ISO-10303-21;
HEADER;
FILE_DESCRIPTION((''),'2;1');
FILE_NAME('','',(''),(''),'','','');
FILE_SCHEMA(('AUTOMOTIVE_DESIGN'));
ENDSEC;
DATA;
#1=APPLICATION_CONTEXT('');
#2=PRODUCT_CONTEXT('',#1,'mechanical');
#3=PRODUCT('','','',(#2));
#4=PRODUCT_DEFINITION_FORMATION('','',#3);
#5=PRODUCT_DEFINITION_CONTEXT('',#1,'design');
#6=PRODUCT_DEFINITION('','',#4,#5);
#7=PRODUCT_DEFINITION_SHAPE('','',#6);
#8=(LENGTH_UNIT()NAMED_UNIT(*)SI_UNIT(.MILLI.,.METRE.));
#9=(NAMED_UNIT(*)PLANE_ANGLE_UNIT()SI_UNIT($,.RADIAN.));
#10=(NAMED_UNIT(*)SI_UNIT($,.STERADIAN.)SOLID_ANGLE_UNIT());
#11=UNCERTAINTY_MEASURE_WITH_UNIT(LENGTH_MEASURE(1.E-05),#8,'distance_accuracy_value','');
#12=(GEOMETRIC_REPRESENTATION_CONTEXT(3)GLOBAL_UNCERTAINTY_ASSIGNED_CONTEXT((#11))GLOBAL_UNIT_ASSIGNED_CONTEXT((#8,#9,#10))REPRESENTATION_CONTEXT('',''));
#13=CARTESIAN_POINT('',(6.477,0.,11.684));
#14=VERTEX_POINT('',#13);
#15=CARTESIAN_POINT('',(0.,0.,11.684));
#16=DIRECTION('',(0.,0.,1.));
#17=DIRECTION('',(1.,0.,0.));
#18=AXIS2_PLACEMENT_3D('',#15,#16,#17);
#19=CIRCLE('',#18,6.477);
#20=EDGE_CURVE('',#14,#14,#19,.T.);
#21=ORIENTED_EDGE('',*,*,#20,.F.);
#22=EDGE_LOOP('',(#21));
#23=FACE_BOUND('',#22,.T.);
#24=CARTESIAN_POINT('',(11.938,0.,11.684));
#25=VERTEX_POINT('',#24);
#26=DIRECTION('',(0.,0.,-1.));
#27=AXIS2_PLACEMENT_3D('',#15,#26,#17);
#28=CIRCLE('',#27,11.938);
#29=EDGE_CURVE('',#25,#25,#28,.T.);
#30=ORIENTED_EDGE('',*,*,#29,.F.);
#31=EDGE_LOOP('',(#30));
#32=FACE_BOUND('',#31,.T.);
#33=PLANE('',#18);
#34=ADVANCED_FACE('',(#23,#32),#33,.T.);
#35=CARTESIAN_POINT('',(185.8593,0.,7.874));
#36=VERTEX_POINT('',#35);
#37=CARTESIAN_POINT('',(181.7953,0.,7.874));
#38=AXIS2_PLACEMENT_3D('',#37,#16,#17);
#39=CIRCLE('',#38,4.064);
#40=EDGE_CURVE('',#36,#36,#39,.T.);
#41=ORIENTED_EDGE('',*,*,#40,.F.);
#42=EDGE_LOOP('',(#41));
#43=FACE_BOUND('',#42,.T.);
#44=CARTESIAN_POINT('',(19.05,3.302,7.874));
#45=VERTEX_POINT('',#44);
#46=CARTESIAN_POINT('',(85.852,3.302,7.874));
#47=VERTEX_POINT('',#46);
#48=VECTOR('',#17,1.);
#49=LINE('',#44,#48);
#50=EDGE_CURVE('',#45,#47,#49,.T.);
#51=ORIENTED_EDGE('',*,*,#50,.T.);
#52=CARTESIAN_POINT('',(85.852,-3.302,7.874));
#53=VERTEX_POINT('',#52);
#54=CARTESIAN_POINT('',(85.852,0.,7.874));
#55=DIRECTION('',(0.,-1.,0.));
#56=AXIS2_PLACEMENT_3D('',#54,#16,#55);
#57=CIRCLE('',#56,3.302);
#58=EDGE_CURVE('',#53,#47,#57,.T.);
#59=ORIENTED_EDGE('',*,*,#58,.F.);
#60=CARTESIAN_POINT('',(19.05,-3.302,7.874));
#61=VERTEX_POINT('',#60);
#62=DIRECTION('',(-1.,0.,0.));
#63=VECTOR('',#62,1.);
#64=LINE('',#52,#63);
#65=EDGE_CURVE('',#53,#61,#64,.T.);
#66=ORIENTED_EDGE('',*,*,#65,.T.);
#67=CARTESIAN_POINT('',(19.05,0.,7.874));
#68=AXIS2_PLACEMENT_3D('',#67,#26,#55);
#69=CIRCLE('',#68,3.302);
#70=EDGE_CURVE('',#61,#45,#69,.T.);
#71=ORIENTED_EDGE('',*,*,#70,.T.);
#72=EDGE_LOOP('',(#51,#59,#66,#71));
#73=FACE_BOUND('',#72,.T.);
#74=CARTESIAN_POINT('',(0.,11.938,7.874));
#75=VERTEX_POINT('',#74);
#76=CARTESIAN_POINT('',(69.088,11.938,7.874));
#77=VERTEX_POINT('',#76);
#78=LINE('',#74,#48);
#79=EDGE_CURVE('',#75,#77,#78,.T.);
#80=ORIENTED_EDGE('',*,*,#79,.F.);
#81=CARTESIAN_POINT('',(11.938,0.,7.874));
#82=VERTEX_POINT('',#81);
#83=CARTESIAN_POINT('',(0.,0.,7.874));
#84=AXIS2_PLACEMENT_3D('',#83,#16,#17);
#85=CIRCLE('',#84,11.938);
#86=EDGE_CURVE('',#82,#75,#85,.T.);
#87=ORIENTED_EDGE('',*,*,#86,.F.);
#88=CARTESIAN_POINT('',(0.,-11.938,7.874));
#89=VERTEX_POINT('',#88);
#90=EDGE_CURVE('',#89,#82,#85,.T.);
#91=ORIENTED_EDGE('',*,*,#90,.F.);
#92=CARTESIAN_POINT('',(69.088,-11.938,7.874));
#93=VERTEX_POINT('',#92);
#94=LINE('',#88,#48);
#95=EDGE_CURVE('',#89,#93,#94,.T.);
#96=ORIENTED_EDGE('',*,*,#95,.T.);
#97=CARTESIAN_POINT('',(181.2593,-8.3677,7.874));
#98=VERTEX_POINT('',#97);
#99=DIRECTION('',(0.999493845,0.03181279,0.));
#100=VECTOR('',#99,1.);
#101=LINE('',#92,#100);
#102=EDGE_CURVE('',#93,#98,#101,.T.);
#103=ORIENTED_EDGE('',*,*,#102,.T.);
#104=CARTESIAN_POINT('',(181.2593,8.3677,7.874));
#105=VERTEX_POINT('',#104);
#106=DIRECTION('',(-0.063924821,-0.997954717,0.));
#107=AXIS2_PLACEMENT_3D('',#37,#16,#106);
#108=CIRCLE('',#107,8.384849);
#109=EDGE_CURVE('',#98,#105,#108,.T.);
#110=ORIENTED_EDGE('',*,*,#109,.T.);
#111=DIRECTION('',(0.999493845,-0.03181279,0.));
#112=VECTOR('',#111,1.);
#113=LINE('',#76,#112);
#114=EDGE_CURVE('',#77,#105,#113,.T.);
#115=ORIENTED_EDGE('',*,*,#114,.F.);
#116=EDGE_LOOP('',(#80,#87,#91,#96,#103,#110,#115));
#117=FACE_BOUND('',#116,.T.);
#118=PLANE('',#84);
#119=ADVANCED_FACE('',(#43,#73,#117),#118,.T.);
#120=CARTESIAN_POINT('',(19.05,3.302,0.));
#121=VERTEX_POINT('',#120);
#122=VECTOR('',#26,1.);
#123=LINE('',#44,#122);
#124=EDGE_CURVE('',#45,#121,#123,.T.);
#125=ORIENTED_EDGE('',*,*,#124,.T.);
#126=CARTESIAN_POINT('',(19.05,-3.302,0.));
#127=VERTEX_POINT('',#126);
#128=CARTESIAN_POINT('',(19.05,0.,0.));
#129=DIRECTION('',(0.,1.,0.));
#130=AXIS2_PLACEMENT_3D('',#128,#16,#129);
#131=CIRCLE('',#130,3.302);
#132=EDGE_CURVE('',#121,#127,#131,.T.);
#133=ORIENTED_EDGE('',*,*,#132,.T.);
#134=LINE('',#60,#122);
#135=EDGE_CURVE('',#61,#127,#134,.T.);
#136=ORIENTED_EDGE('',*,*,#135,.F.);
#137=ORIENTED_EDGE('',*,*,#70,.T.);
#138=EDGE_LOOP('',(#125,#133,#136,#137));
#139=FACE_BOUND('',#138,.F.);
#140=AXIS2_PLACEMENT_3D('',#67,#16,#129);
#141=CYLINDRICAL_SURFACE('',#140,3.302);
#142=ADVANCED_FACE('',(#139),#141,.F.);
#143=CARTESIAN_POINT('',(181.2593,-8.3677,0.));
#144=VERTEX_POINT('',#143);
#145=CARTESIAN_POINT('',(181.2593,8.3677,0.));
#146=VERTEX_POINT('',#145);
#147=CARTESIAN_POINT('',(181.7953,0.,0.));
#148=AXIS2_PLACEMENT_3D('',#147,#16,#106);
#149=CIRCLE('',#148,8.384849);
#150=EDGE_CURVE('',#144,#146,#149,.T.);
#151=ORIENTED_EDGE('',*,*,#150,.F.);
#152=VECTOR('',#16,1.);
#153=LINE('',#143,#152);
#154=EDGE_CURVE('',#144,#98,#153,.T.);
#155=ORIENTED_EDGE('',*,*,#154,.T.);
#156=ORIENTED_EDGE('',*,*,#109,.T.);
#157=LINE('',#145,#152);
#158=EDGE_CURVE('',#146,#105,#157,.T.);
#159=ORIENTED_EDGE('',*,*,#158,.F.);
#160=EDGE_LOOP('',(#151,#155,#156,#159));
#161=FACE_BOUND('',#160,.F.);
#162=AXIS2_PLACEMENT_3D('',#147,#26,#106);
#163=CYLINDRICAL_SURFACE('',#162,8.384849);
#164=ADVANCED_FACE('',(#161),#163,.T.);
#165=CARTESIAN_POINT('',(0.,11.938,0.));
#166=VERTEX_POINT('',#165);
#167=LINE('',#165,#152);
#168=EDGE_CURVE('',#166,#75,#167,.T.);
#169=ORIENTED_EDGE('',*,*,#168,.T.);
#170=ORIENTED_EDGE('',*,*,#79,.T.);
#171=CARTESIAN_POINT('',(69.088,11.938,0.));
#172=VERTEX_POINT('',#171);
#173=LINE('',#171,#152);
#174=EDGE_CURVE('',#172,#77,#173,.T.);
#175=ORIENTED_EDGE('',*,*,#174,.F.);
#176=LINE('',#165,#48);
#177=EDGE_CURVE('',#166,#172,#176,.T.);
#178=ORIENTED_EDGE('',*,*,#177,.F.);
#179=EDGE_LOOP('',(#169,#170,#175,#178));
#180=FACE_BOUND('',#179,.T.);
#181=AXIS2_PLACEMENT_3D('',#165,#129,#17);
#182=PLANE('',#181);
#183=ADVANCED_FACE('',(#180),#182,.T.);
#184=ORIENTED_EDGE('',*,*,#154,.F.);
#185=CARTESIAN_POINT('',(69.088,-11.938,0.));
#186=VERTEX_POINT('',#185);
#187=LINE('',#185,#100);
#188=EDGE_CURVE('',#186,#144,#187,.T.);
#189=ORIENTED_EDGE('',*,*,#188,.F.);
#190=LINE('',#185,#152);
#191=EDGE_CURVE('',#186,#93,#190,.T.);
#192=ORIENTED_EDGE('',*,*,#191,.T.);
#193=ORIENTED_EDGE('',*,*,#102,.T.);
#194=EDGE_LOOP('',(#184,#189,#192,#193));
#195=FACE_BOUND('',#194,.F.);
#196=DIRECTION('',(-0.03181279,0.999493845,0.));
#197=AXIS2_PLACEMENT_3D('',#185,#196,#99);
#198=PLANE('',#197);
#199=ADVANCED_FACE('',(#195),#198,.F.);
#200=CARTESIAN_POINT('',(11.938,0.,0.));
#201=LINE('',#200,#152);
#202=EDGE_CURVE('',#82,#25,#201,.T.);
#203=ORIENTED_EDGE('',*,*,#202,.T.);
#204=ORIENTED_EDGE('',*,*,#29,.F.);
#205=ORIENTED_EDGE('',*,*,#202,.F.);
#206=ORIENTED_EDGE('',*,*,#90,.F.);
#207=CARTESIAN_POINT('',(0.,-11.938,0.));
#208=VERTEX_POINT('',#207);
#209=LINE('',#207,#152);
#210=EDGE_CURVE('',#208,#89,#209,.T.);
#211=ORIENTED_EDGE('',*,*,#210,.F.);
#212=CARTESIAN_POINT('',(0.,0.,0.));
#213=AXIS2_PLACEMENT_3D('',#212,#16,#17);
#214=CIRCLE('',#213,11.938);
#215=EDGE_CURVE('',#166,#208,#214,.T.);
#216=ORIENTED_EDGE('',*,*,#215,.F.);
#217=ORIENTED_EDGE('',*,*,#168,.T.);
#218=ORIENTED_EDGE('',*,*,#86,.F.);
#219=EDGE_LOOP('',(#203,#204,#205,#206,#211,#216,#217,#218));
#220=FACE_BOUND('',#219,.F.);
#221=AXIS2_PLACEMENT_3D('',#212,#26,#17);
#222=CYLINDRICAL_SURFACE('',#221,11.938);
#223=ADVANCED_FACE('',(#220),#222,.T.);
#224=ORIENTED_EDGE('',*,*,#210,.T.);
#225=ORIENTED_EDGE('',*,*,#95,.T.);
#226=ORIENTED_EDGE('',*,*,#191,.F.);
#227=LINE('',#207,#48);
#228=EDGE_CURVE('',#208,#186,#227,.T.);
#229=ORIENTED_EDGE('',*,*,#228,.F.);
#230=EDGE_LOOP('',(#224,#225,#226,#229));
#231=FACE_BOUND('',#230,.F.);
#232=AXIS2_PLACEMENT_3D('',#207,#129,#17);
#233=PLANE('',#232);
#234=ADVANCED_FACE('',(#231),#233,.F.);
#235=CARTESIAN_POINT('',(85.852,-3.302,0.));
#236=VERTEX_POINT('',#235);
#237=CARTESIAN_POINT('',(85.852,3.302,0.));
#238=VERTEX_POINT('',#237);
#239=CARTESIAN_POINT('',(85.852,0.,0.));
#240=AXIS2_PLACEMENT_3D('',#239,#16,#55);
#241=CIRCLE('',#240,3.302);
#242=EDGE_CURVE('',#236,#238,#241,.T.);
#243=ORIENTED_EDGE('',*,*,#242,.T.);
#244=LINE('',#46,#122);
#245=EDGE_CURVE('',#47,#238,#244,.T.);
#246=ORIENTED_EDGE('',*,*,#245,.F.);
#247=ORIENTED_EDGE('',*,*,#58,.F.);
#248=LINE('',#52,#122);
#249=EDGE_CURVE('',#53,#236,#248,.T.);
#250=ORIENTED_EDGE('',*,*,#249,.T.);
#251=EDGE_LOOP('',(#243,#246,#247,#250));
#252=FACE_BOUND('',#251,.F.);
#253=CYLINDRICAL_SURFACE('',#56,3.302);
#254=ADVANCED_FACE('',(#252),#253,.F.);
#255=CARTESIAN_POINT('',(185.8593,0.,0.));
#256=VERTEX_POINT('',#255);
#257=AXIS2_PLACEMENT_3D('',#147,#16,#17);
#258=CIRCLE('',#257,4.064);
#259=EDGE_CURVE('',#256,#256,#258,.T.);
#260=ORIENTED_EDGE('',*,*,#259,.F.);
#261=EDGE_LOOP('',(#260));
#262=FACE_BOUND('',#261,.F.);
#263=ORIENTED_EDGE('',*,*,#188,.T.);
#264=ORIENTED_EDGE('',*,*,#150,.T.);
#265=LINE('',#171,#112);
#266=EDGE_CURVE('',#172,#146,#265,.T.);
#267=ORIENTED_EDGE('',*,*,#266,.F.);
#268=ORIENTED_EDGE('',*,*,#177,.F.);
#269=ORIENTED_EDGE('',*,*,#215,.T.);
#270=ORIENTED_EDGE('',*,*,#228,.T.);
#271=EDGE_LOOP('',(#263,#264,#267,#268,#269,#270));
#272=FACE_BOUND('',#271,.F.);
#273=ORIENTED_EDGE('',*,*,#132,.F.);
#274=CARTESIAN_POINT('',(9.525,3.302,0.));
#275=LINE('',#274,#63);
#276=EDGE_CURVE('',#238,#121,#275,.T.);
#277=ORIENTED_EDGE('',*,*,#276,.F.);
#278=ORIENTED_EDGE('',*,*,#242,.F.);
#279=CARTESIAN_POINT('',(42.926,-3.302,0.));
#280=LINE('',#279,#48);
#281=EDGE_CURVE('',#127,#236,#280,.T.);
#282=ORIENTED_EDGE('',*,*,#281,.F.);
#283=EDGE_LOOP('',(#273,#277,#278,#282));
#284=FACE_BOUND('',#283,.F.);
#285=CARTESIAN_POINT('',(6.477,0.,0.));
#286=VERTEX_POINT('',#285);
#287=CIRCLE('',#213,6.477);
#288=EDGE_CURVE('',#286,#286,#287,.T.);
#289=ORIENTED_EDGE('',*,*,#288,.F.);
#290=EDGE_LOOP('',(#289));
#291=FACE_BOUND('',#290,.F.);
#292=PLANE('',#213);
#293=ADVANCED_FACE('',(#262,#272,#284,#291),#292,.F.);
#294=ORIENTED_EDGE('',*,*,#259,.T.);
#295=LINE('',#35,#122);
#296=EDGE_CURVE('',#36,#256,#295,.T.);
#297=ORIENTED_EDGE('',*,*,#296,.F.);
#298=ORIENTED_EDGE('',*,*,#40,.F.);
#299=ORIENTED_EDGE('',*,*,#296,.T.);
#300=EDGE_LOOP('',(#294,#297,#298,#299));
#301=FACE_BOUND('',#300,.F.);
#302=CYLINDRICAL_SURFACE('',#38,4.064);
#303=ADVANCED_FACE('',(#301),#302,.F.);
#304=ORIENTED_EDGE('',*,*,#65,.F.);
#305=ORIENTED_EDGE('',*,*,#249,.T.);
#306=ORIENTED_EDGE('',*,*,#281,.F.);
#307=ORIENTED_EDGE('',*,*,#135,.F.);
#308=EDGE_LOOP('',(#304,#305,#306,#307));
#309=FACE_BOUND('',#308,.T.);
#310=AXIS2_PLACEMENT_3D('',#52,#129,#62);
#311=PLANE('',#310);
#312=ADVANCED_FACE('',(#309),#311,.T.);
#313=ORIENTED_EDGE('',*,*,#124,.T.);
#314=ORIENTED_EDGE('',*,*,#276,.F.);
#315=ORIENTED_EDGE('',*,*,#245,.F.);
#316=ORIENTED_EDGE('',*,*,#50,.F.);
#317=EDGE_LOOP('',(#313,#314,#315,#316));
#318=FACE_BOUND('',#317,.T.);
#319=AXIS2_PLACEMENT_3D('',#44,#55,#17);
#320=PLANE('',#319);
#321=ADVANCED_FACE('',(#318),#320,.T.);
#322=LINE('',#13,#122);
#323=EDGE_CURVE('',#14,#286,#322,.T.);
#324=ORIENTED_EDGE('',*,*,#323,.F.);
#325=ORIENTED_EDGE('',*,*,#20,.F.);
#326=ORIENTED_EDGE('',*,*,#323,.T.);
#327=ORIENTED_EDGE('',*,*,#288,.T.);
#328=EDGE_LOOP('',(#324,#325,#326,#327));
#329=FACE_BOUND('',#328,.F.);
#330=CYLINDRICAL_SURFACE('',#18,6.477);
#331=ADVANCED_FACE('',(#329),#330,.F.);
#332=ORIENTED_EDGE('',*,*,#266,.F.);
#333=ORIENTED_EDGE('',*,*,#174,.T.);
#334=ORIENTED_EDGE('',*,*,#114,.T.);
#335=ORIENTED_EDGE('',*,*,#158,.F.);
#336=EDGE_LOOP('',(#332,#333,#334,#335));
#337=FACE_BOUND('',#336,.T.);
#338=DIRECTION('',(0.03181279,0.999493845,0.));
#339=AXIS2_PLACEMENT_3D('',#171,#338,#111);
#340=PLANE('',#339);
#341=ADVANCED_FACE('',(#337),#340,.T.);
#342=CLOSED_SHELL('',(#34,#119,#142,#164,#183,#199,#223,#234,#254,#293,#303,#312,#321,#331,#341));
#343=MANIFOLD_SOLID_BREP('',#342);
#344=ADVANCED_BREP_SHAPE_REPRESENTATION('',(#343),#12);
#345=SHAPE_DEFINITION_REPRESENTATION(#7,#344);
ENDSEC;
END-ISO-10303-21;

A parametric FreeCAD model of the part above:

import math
import FreeCAD as App
import Part
import Sketcher
from FreeCAD import Vector
Q = App.Units.Quantity

doc = App.newDocument("Part")
body = doc.addObject("PartDesign::Body", "Body")

# Sketch on XY plane
sketch1 = body.newObject("Sketcher::SketchObject", "Sketch")
sketch1.AttachmentSupport = (doc.getObject("XY_Plane"), [""])
sketch1.MapMode = "FlatFace"
sketch1.addGeometry(Part.Circle(Vector(0, 0, 0), Vector(0, 0, 1), 11.938), False)
sketch1.addConstraint([
    Sketcher.Constraint("Coincident", 0, 3, -1, 1),
    Sketcher.Constraint("Diameter", 0, Q("0.94 in")),
])
pad1 = body.newObject("PartDesign::Pad", "Pad")
pad1.Profile = sketch1
pad1.Length = Q("0.46 in")

# Sketch on XY plane
sketch2 = body.newObject("Sketcher::SketchObject", "Sketch001")
sketch2.AttachmentSupport = (doc.getObject("XY_Plane"), [""])
sketch2.MapMode = "FlatFace"
sketch2.addGeometry([
    Part.ArcOfCircle(Part.Circle(Vector(0, 0, 0), Vector(0, 0, 1), 11.938), math.radians(-90), math.radians(90)),  # 0
    Part.LineSegment(Vector(0, -11.938, 0), Vector(69.088, -11.938, 0)),  # 1
    Part.LineSegment(Vector(69.088, -11.938, 0), Vector(181.2593, -8.367711, 0)),  # 2
    Part.ArcOfCircle(Part.Circle(Vector(181.7953, 0, 0), Vector(0, 0, 1), 8.384849), math.radians(-93.665122), math.radians(93.665122)),  # 3
    Part.LineSegment(Vector(181.2593, 8.367711, 0), Vector(69.088, 11.938, 0)),  # 4
    Part.LineSegment(Vector(69.088, 11.938, 0), Vector(0, 11.938, 0)),  # 5
], False)
sketch2.addConstraint([
    Sketcher.Constraint("Tangent", 0, 1, 1, 1),
    Sketcher.Constraint("Coincident", 1, 2, 2, 1),
    Sketcher.Constraint("Coincident", 2, 2, 3, 1),
    Sketcher.Constraint("Coincident", 3, 2, 4, 1),
    Sketcher.Constraint("Coincident", 4, 2, 5, 1),
    Sketcher.Constraint("Tangent", 5, 2, 0, 2),
    Sketcher.Constraint("Horizontal", 1),
    Sketcher.Constraint("Horizontal", 5),
    Sketcher.Constraint("Coincident", 0, 3, -1, 1),
    Sketcher.Constraint("Symmetric", 2, 2, 3, 2, -1),
    Sketcher.Constraint("Vertical", 1, 2, 4, 2),
    Sketcher.Constraint("Radius", 0, Q("0.47 in")),
    Sketcher.Constraint("DistanceX", 1, 1, 1, 2, Q("2.72 in")),
    Sketcher.Constraint("Radius", 3, Q("0.3301102 in")),
    Sketcher.Constraint("DistanceX", -1, 1, 3, 3, Q("7.1573 in")),
    Sketcher.Constraint("DistanceX", -1, 1, 2, 2, Q("7.1362 in")),
])
pad2 = body.newObject("PartDesign::Pad", "Pad001")
pad2.Profile = sketch2
pad2.Length = Q("0.31 in")

# Sketch on XY plane
sketch3 = body.newObject("Sketcher::SketchObject", "Sketch002")
sketch3.AttachmentSupport = (doc.getObject("XY_Plane"), [""])
sketch3.MapMode = "FlatFace"
sketch3.AttachmentOffset = App.Placement(Vector(0, 0, 0.31 * 25.4), App.Rotation())
sketch3.addGeometry([
    Part.Circle(Vector(181.7953, 0, 0), Vector(0, 0, 1), 4.064),  # 0
    Part.LineSegment(Vector(85.852, 3.302, 0), Vector(19.05, 3.302, 0)),  # 1
    Part.ArcOfCircle(Part.Circle(Vector(19.05, 0, 0), Vector(0, 0, 1), 3.302), math.radians(90), math.radians(270)),  # 2
    Part.LineSegment(Vector(19.05, -3.302, 0), Vector(85.852, -3.302, 0)),  # 3
    Part.ArcOfCircle(Part.Circle(Vector(85.852, 0, 0), Vector(0, 0, 1), 3.302), math.radians(-90), math.radians(90)),  # 4
], False)
sketch3.addConstraint([
    Sketcher.Constraint("Tangent", 1, 2, 2, 1),
    Sketcher.Constraint("Tangent", 2, 2, 3, 1),
    Sketcher.Constraint("Tangent", 3, 2, 4, 1),
    Sketcher.Constraint("Tangent", 4, 2, 1, 1),
    Sketcher.Constraint("Horizontal", 1),
    Sketcher.Constraint("Horizontal", 3),
    Sketcher.Constraint("PointOnObject", 0, 3, -1),
    Sketcher.Constraint("PointOnObject", 2, 3, -1),
    Sketcher.Constraint("Diameter", 0, Q("0.32 in")),
    Sketcher.Constraint("Radius", 2, Q("0.13 in")),
    Sketcher.Constraint("DistanceX", 1, 2, 1, 1, Q("2.63 in")),
    Sketcher.Constraint("DistanceX", -1, 1, 2, 3, Q("0.75 in")),
    Sketcher.Constraint("DistanceX", -1, 1, 0, 3, Q("7.1573 in")),
])
pocket1 = body.newObject("PartDesign::Pocket", "Pocket")
pocket1.Profile = sketch3
pocket1.Type = "UpToFirst"

# Sketch on XY plane
sketch4 = body.newObject("Sketcher::SketchObject", "Sketch003")
sketch4.AttachmentSupport = (doc.getObject("XY_Plane"), [""])
sketch4.MapMode = "FlatFace"
sketch4.AttachmentOffset = App.Placement(Vector(0, 0, 0.46 * 25.4), App.Rotation())
sketch4.addGeometry(Part.Circle(Vector(0, 0, 0), Vector(0, 0, 1), 6.477), False)
sketch4.addConstraint([
    Sketcher.Constraint("Coincident", 0, 3, -1, 1),
    Sketcher.Constraint("Diameter", 0, Q("0.51 in")),
])
pocket2 = body.newObject("PartDesign::Pocket", "Pocket001")
pocket2.Profile = sketch4
pocket2.Type = "UpToFirst"

doc.recompute()
